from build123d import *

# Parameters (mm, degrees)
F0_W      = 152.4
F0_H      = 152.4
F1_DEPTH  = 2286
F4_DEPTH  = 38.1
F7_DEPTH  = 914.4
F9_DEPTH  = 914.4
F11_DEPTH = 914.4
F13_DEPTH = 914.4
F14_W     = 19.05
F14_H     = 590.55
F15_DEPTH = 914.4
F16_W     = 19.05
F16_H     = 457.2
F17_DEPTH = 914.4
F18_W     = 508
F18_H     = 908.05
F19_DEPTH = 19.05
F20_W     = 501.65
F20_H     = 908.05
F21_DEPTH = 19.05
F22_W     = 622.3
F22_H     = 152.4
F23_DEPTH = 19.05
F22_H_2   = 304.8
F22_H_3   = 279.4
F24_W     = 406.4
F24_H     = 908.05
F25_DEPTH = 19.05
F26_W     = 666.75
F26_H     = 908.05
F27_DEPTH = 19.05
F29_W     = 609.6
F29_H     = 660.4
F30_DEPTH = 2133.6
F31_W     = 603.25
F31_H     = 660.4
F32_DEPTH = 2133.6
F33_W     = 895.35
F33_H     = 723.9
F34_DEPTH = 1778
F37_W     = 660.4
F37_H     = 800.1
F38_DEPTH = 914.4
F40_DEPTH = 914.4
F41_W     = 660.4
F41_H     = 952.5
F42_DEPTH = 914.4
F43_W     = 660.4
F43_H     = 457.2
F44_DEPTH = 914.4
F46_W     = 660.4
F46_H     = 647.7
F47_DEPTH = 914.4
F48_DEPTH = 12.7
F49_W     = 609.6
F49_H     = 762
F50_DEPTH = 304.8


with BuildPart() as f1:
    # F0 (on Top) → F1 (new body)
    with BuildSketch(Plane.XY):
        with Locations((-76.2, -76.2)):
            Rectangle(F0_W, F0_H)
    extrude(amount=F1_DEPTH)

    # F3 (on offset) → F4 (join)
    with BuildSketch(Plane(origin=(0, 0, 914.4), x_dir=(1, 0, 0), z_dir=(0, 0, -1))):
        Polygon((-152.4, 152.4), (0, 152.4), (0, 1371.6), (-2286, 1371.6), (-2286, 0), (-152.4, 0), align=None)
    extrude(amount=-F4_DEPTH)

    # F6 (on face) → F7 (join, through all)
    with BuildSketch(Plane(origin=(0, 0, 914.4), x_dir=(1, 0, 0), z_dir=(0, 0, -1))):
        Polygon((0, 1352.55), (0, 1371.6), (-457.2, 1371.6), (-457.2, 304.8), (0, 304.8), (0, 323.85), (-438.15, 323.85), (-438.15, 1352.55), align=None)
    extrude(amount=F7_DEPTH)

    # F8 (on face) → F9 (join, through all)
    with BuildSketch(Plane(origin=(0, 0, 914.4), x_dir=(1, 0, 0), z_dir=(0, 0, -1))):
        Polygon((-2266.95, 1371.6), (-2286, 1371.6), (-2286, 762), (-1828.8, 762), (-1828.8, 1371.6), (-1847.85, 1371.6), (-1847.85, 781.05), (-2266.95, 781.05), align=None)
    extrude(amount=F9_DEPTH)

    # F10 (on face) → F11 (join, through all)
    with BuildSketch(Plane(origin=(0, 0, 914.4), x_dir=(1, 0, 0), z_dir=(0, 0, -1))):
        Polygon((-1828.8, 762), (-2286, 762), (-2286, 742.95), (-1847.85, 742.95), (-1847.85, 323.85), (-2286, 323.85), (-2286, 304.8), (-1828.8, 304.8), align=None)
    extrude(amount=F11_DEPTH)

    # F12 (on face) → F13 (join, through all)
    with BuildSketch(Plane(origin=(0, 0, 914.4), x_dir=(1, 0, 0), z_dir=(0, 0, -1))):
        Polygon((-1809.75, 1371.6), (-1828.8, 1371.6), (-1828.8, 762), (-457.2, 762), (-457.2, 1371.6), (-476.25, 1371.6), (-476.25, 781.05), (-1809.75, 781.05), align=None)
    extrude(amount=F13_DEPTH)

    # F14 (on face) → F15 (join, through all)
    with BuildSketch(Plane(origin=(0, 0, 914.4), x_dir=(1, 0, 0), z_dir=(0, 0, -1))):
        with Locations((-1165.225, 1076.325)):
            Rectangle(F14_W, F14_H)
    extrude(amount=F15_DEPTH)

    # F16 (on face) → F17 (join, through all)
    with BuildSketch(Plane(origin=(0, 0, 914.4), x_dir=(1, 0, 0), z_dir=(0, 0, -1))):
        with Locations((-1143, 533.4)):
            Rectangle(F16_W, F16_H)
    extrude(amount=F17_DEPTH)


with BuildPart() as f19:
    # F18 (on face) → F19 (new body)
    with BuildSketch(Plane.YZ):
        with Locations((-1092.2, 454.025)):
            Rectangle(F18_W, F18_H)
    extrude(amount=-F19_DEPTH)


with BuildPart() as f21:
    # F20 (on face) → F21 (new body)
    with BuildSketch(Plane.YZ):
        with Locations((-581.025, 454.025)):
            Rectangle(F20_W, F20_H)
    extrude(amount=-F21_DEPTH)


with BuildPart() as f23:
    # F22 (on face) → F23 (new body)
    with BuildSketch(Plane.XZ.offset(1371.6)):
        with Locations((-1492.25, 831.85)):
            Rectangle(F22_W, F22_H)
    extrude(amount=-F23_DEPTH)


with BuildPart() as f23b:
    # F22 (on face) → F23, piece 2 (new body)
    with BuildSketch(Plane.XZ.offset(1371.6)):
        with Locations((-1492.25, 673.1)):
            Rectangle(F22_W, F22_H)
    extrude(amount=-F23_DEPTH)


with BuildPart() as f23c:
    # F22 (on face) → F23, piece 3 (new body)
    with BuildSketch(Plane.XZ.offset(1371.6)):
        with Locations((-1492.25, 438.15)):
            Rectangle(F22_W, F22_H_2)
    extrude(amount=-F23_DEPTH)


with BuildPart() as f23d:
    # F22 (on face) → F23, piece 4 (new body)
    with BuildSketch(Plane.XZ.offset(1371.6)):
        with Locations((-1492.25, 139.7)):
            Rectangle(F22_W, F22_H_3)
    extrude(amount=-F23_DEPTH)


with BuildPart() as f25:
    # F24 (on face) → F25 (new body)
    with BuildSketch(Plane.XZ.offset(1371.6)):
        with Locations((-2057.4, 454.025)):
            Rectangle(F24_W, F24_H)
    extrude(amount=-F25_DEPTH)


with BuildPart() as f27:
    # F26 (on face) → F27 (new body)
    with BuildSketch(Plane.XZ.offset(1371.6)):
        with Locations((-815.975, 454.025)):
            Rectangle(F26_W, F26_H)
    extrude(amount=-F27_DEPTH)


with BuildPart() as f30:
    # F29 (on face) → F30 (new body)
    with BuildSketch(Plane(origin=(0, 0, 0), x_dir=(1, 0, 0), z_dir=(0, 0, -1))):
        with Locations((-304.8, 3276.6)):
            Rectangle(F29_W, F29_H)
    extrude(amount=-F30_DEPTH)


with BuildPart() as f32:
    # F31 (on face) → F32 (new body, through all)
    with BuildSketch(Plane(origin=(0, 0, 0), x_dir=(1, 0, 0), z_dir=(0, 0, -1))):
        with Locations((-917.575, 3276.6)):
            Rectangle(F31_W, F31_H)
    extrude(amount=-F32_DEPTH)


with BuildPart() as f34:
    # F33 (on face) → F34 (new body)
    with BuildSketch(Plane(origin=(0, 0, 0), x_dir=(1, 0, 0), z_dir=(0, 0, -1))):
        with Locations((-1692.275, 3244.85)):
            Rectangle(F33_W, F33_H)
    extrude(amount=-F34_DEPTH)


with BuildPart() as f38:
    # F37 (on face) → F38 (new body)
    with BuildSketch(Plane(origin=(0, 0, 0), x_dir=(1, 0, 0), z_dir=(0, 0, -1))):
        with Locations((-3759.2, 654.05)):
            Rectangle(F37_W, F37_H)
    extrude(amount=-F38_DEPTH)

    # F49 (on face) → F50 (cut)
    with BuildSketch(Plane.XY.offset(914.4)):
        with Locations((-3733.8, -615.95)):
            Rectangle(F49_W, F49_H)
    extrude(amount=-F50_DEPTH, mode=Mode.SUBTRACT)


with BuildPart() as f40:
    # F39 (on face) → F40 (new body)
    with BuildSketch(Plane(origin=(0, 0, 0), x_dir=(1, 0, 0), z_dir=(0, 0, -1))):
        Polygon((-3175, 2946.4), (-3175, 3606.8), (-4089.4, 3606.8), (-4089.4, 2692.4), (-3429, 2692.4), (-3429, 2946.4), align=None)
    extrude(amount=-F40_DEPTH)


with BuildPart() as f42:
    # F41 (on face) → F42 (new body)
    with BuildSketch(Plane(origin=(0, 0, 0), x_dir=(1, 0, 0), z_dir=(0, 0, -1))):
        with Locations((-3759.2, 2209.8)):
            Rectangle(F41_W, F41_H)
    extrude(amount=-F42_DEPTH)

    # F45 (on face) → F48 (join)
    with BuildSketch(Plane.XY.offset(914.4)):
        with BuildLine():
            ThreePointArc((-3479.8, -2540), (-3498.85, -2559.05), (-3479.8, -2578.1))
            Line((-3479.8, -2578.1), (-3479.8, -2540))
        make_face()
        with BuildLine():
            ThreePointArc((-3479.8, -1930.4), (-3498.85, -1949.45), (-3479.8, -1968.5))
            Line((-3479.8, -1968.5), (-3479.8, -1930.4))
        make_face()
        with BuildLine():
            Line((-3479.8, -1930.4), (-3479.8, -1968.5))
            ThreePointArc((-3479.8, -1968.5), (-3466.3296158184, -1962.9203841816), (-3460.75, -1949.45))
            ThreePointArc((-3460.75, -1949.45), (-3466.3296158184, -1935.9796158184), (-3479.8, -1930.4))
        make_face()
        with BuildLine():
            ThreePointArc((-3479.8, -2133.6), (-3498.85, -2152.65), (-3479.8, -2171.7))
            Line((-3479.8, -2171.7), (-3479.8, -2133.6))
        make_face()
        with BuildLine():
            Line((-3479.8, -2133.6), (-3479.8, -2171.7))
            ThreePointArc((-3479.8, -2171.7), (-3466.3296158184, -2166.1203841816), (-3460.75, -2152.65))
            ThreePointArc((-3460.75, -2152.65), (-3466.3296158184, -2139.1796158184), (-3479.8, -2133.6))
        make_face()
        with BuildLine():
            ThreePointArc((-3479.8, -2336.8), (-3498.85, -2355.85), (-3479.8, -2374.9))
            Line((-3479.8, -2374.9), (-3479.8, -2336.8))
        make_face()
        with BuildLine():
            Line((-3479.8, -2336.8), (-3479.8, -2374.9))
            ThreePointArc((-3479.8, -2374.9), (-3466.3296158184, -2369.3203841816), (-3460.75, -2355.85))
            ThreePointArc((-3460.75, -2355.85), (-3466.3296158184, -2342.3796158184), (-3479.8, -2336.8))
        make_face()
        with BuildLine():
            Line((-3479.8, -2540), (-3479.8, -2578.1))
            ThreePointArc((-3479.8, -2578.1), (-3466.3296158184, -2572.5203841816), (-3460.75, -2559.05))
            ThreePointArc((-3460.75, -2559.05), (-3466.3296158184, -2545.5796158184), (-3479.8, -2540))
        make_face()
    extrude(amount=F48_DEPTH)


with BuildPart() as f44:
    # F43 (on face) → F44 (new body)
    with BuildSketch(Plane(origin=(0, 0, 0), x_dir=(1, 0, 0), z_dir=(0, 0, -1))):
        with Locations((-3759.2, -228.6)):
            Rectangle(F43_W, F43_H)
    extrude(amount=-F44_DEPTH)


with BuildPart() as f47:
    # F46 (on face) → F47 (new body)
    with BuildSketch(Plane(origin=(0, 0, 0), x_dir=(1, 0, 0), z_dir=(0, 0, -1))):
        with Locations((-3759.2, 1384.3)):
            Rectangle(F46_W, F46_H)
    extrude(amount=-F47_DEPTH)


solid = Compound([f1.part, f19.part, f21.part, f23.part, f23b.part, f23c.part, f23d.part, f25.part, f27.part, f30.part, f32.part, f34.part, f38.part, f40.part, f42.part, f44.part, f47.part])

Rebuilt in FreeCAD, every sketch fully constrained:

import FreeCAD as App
import Part
import Sketcher
Q = App.Units.Quantity


def add_polygon(sketch, points):
    """Adds a closed chain of lines whose ends are joined by coincident constraints."""
    first, n = sketch.GeometryCount, len(points)
    for a, b in zip(points, points[1:] + points[:1]):
        sketch.addGeometry(Part.LineSegment(App.Vector(*a, 0), App.Vector(*b, 0)), False)
    for i in range(n):
        sketch.addConstraint(Sketcher.Constraint("Coincident", first + i, 2, first + (i + 1) % n, 1))

doc = App.newDocument("Part")
body = doc.addObject("PartDesign::Body", "Body")

# Sketch on XY plane
sketch1 = body.newObject("Sketcher::SketchObject", "Sketch")
sketch1.AttachmentSupport = (doc.getObject("XY_Plane"), [""])
sketch1.MapMode = "FlatFace"
add_polygon(sketch1, [(-152, 0), (-152, -152), (0, -152), (0, 0)])  # lines 0-3
sketch1.addConstraint(Sketcher.Constraint("Vertical", 0))
sketch1.addConstraint(Sketcher.Constraint("Horizontal", 1))
sketch1.addConstraint(Sketcher.Constraint("Vertical", 2))
sketch1.addConstraint(Sketcher.Constraint("Horizontal", 3))
sketch1.addConstraint(Sketcher.Constraint("Coincident", 2, 2, -1, 1))
sketch1.addConstraint(Sketcher.Constraint("Equal", 3, 0))
sketch1.addConstraint(Sketcher.Constraint("DistanceX", 1, 1, 1, 2, Q("6 in")))
pad1 = body.newObject("PartDesign::Pad", "Pad")
pad1.Profile = sketch1
pad1.Length = Q("90 in")

# Sketch on XY plane
sketch2 = body.newObject("Sketcher::SketchObject", "Sketch001")
sketch2.AttachmentSupport = (doc.getObject("XY_Plane"), [""])
sketch2.MapMode = "FlatFace"
sketch2.AttachmentOffset = App.Placement(App.Vector(0, 0, 36 * 25.4), App.Rotation())
add_polygon(sketch2, [(-152, -152), (0, -152), (0, -1372), (-2286, -1372), (-2286, 0), (-152, 0)])  # lines 0-5
sketch2.addConstraint(Sketcher.Constraint("Horizontal", 0))
sketch2.addConstraint(Sketcher.Constraint("Vertical", 1))
sketch2.addConstraint(Sketcher.Constraint("Horizontal", 2))
sketch2.addConstraint(Sketcher.Constraint("Vertical", 3))
sketch2.addConstraint(Sketcher.Constraint("Horizontal", 4))
sketch2.addConstraint(Sketcher.Constraint("Vertical", 5))
sketch2.addConstraint(Sketcher.Constraint("PointOnObject", 0, 2, -2))
sketch2.addConstraint(Sketcher.Constraint("PointOnObject", 3, 2, -1))
sketch2.addConstraint(Sketcher.Constraint("Equal", 0, 5))
sketch2.addConstraint(Sketcher.Constraint("DistanceX", 0, 1, 0, 2, Q("6 in")))
sketch2.addConstraint(Sketcher.Constraint("DistanceX", 2, 2, 2, 1, Q("90 in")))
sketch2.addConstraint(Sketcher.Constraint("DistanceY", 1, 2, 1, 1, Q("48 in")))
pad2 = body.newObject("PartDesign::Pad", "Pad001")
pad2.Profile = sketch2
pad2.Length = Q("1.5 in")

# Sketch on XY plane
sketch3 = body.newObject("Sketcher::SketchObject", "Sketch002")
sketch3.AttachmentSupport = (doc.getObject("XY_Plane"), [""])
sketch3.MapMode = "FlatFace"
sketch3.AttachmentOffset = App.Placement(App.Vector(0, 0, 36 * 25.4), App.Rotation())
add_polygon(sketch3, [(0, -1353), (0, -1372), (-457, -1372), (-457, -305), (0, -305), (0, -324), (-438, -324), (-438, -1353)])  # lines 0-7
sketch3.addConstraint(Sketcher.Constraint("Vertical", 0))
sketch3.addConstraint(Sketcher.Constraint("Horizontal", 1))
sketch3.addConstraint(Sketcher.Constraint("Vertical", 2))
sketch3.addConstraint(Sketcher.Constraint("Horizontal", 3))
sketch3.addConstraint(Sketcher.Constraint("Vertical", 4))
sketch3.addConstraint(Sketcher.Constraint("Horizontal", 5))
sketch3.addConstraint(Sketcher.Constraint("Vertical", 6))
sketch3.addConstraint(Sketcher.Constraint("Horizontal", 7))
sketch3.addConstraint(Sketcher.Constraint("PointOnObject", 0, 2, -2))
sketch3.addConstraint(Sketcher.Constraint("PointOnObject", 3, 2, -2))
sketch3.addConstraint(Sketcher.Constraint("Equal", 0, 4))
sketch3.addConstraint(Sketcher.Constraint("DistanceX", 1, 2, 1, 1, Q("18 in")))
sketch3.addConstraint(Sketcher.Constraint("DistanceY", 2, 1, 2, 2, Q("42 in")))
sketch3.addConstraint(Sketcher.Constraint("DistanceY", 6, 2, 6, 1, Q("40.5 in")))
sketch3.addConstraint(Sketcher.Constraint("DistanceY", 0, 2, -1, 1, Q("54 in")))
sketch3.addConstraint(Sketcher.Constraint("DistanceX", 5, 2, 5, 1, Q("17.25 in")))
pad3 = body.newObject("PartDesign::Pad", "Pad002")
pad3.Profile = sketch3
pad3.Length = Q("36 in")
pad3.Reversed = True

# Sketch on XY plane
sketch4 = body.newObject("Sketcher::SketchObject", "Sketch003")
sketch4.AttachmentSupport = (doc.getObject("XY_Plane"), [""])
sketch4.MapMode = "FlatFace"
sketch4.AttachmentOffset = App.Placement(App.Vector(0, 0, 36 * 25.4), App.Rotation())
add_polygon(sketch4, [(-2267, -1372), (-2286, -1372), (-2286, -762), (-1829, -762), (-1829, -1372), (-1848, -1372), (-1848, -781), (-2267, -781)])  # lines 0-7
sketch4.addConstraint(Sketcher.Constraint("Horizontal", 0))
sketch4.addConstraint(Sketcher.Constraint("Vertical", 1))
sketch4.addConstraint(Sketcher.Constraint("Horizontal", 2))
sketch4.addConstraint(Sketcher.Constraint("Vertical", 3))
sketch4.addConstraint(Sketcher.Constraint("Horizontal", 4))
sketch4.addConstraint(Sketcher.Constraint("Vertical", 5))
sketch4.addConstraint(Sketcher.Constraint("Horizontal", 6))
sketch4.addConstraint(Sketcher.Constraint("Vertical", 7))
sketch4.addConstraint(Sketcher.Constraint("Horizontal", 0, 2, 3, 2))
sketch4.addConstraint(Sketcher.Constraint("Equal", 0, 4))
sketch4.addConstraint(Sketcher.Constraint("DistanceX", 2, 1, 2, 2, Q("18 in")))
sketch4.addConstraint(Sketcher.Constraint("DistanceY", 1, 1, 1, 2, Q("24 in")))
sketch4.addConstraint(Sketcher.Constraint("DistanceX", 6, 2, 6, 1, Q("16.5 in")))
sketch4.addConstraint(Sketcher.Constraint("DistanceX", 0, 2, -1, 1, Q("90 in")))
sketch4.addConstraint(Sketcher.Constraint("DistanceY", 0, 2, -1, 1, Q("54 in")))
sketch4.addConstraint(Sketcher.Constraint("DistanceY", 5, 1, 5, 2, Q("23.25 in")))
pad4 = body.newObject("PartDesign::Pad", "Pad003")
pad4.Profile = sketch4
pad4.Length = Q("36 in")
pad4.Reversed = True

# Sketch on XY plane
sketch5 = body.newObject("Sketcher::SketchObject", "Sketch004")
sketch5.AttachmentSupport = (doc.getObject("XY_Plane"), [""])
sketch5.MapMode = "FlatFace"
sketch5.AttachmentOffset = App.Placement(App.Vector(0, 0, 36 * 25.4), App.Rotation())
add_polygon(sketch5, [(-1829, -762), (-2286, -762), (-2286, -743), (-1848, -743), (-1848, -324), (-2286, -324), (-2286, -305), (-1829, -305)])  # lines 0-7
sketch5.addConstraint(Sketcher.Constraint("Horizontal", 0))
sketch5.addConstraint(Sketcher.Constraint("Vertical", 1))
sketch5.addConstraint(Sketcher.Constraint("Horizontal", 2))
sketch5.addConstraint(Sketcher.Constraint("Vertical", 3))
sketch5.addConstraint(Sketcher.Constraint("Horizontal", 4))
sketch5.addConstraint(Sketcher.Constraint("Vertical", 5))
sketch5.addConstraint(Sketcher.Constraint("Horizontal", 6))
sketch5.addConstraint(Sketcher.Constraint("Vertical", 7))
sketch5.addConstraint(Sketcher.Constraint("Vertical", 1, 2, 4, 2))
sketch5.addConstraint(Sketcher.Constraint("Equal", 1, 5))
sketch5.addConstraint(Sketcher.Constraint("Equal", 6, 7))
sketch5.addConstraint(Sketcher.Constraint("DistanceX", 0, 2, 0, 1, Q("18 in")))
sketch5.addConstraint(Sketcher.Constraint("DistanceY", 3, 1, 3, 2, Q("16.5 in")))
sketch5.addConstraint(Sketcher.Constraint("DistanceX", 0, 2, -1, 1, Q("90 in")))
sketch5.addConstraint(Sketcher.Constraint("DistanceY", 0, 2, -1, 1, Q("30 in")))
sketch5.addConstraint(Sketcher.Constraint("DistanceX", 2, 1, 2, 2, Q("17.25 in")))
pad5 = body.newObject("PartDesign::Pad", "Pad004")
pad5.Profile = sketch5
pad5.Length = Q("36 in")
pad5.Reversed = True

# Sketch on XY plane
sketch6 = body.newObject("Sketcher::SketchObject", "Sketch005")
sketch6.AttachmentSupport = (doc.getObject("XY_Plane"), [""])
sketch6.MapMode = "FlatFace"
sketch6.AttachmentOffset = App.Placement(App.Vector(0, 0, 36 * 25.4), App.Rotation())
add_polygon(sketch6, [(-1810, -1372), (-1829, -1372), (-1829, -762), (-457, -762), (-457, -1372), (-476, -1372), (-476, -781), (-1810, -781)])  # lines 0-7
sketch6.addConstraint(Sketcher.Constraint("Horizontal", 0))
sketch6.addConstraint(Sketcher.Constraint("Vertical", 1))
sketch6.addConstraint(Sketcher.Constraint("Horizontal", 2))
sketch6.addConstraint(Sketcher.Constraint("Vertical", 3))
sketch6.addConstraint(Sketcher.Constraint("Horizontal", 4))
sketch6.addConstraint(Sketcher.Constraint("Vertical", 5))
sketch6.addConstraint(Sketcher.Constraint("Horizontal", 6))
sketch6.addConstraint(Sketcher.Constraint("Vertical", 7))
sketch6.addConstraint(Sketcher.Constraint("Horizontal", 0, 2, 3, 2))
sketch6.addConstraint(Sketcher.Constraint("Equal", 0, 4))
sketch6.addConstraint(Sketcher.Constraint("DistanceX", 2, 1, 2, 2, Q("54 in")))
sketch6.addConstraint(Sketcher.Constraint("DistanceY", 1, 1, 1, 2, Q("24 in")))
sketch6.addConstraint(Sketcher.Constraint("DistanceX", 6, 2, 6, 1, Q("52.5 in")))
sketch6.addConstraint(Sketcher.Constraint("DistanceX", 0, 2, -1, 1, Q("72 in")))
sketch6.addConstraint(Sketcher.Constraint("DistanceY", 0, 2, -1, 1, Q("54 in")))
sketch6.addConstraint(Sketcher.Constraint("DistanceY", 5, 1, 5, 2, Q("23.25 in")))
pad6 = body.newObject("PartDesign::Pad", "Pad005")
pad6.Profile = sketch6
pad6.Length = Q("36 in")
pad6.Reversed = True

# Sketch on XY plane
sketch7 = body.newObject("Sketcher::SketchObject", "Sketch006")
sketch7.AttachmentSupport = (doc.getObject("XY_Plane"), [""])
sketch7.MapMode = "FlatFace"
sketch7.AttachmentOffset = App.Placement(App.Vector(0, 0, 36 * 25.4), App.Rotation())
add_polygon(sketch7, [(-1175, -1372), (-1175, -781), (-1156, -781), (-1156, -1372)])  # lines 0-3
sketch7.addConstraint(Sketcher.Constraint("Vertical", 0))
sketch7.addConstraint(Sketcher.Constraint("Horizontal", 1))
sketch7.addConstraint(Sketcher.Constraint("Vertical", 2))
sketch7.addConstraint(Sketcher.Constraint("Horizontal", 3))
sketch7.addConstraint(Sketcher.Constraint("DistanceY", 2, 2, -1, 1, Q("54 in")))
sketch7.addConstraint(Sketcher.Constraint("DistanceX", 1, 1, 1, 2, Q("0.75 in")))
sketch7.addConstraint(Sketcher.Constraint("DistanceY", 0, 1, 0, 2, Q("23.25 in")))
sketch7.addConstraint(Sketcher.Constraint("DistanceX", 1, 2, -1, 1, Q("45.5 in")))
pad7 = body.newObject("PartDesign::Pad", "Pad006")
pad7.Profile = sketch7
pad7.Length = Q("36 in")
pad7.Reversed = True

# Sketch on XY plane
sketch8 = body.newObject("Sketcher::SketchObject", "Sketch007")
sketch8.AttachmentSupport = (doc.getObject("XY_Plane"), [""])
sketch8.MapMode = "FlatFace"
sketch8.AttachmentOffset = App.Placement(App.Vector(0, 0, 36 * 25.4), App.Rotation())
add_polygon(sketch8, [(-1153, -762), (-1153, -305), (-1133, -305), (-1133, -762)])  # lines 0-3
sketch8.addConstraint(Sketcher.Constraint("Vertical", 0))
sketch8.addConstraint(Sketcher.Constraint("Horizontal", 1))
sketch8.addConstraint(Sketcher.Constraint("Vertical", 2))
sketch8.addConstraint(Sketcher.Constraint("Horizontal", 3))
sketch8.addConstraint(Sketcher.Constraint("DistanceY", 0, 1, 0, 2, Q("18 in")))
sketch8.addConstraint(Sketcher.Constraint("DistanceY", 0, 2, -1, 1, Q("12 in")))
sketch8.addConstraint(Sketcher.Constraint("DistanceX", 1, 1, 1, 2, Q("0.75 in")))
sketch8.addConstraint(Sketcher.Constraint("DistanceX", 0, 2, -1, 1, Q("45.375 in")))
pad8 = body.newObject("PartDesign::Pad", "Pad007")
pad8.Profile = sketch8
pad8.Length = Q("36 in")
pad8.Reversed = True
body2 = doc.addObject("PartDesign::Body", "Body001")

# Sketch on YZ plane
sketch9 = body2.newObject("Sketcher::SketchObject", "Sketch008")
sketch9.AttachmentSupport = (doc.getObject("YZ_Plane001"), [""])
sketch9.MapMode = "FlatFace"
add_polygon(sketch9, [(-1346, 908), (-1346, 0), (-838, 0), (-838, 908)])  # lines 0-3
sketch9.addConstraint(Sketcher.Constraint("Vertical", 0))
sketch9.addConstraint(Sketcher.Constraint("Horizontal", 1))
sketch9.addConstraint(Sketcher.Constraint("Vertical", 2))
sketch9.addConstraint(Sketcher.Constraint("Horizontal", 3))
sketch9.addConstraint(Sketcher.Constraint("PointOnObject", 0, 2, -1))
sketch9.addConstraint(Sketcher.Constraint("DistanceX", 1, 1, 1, 2, Q("20 in")))
sketch9.addConstraint(Sketcher.Constraint("DistanceX", 0, 2, -1, 1, Q("53 in")))
sketch9.addConstraint(Sketcher.Constraint("DistanceY", 0, 2, 0, 1, Q("35.75 in")))
pad9 = body2.newObject("PartDesign::Pad", "Pad008")
pad9.Profile = sketch9
pad9.Length = Q("0.75 in")
pad9.Reversed = True
body3 = doc.addObject("PartDesign::Body", "Body002")

# Sketch on YZ plane
sketch10 = body3.newObject("Sketcher::SketchObject", "Sketch009")
sketch10.AttachmentSupport = (doc.getObject("YZ_Plane002"), [""])
sketch10.MapMode = "FlatFace"
add_polygon(sketch10, [(-832, 908), (-832, 0), (-330, 0), (-330, 908)])  # lines 0-3
sketch10.addConstraint(Sketcher.Constraint("Vertical", 0))
sketch10.addConstraint(Sketcher.Constraint("Horizontal", 1))
sketch10.addConstraint(Sketcher.Constraint("Vertical", 2))
sketch10.addConstraint(Sketcher.Constraint("Horizontal", 3))
sketch10.addConstraint(Sketcher.Constraint("PointOnObject", 0, 2, -1))
sketch10.addConstraint(Sketcher.Constraint("DistanceX", 1, 2, -1, 1, Q("13 in")))
sketch10.addConstraint(Sketcher.Constraint("DistanceX", 1, 1, 1, 2, Q("19.75 in")))
sketch10.addConstraint(Sketcher.Constraint("DistanceY", 0, 2, 0, 1, Q("35.75 in")))
pad10 = body3.newObject("PartDesign::Pad", "Pad009")
pad10.Profile = sketch10
pad10.Length = Q("0.75 in")
pad10.Reversed = True
body4 = doc.addObject("PartDesign::Body", "Body003")

# Sketch on XZ plane
sketch11 = body4.newObject("Sketcher::SketchObject", "Sketch010")
sketch11.AttachmentSupport = (doc.getObject("XZ_Plane003"), [""])
sketch11.MapMode = "FlatFace"
sketch11.AttachmentOffset = App.Placement(App.Vector(0, 0, 54 * 25.4), App.Rotation())
add_polygon(sketch11, [(-1803, 908), (-1803, 756), (-1181, 756), (-1181, 908)])  # lines 0-3
sketch11.addConstraint(Sketcher.Constraint("Vertical", 0))
sketch11.addConstraint(Sketcher.Constraint("Horizontal", 1))
sketch11.addConstraint(Sketcher.Constraint("Vertical", 2))
sketch11.addConstraint(Sketcher.Constraint("Horizontal", 3))
sketch11.addConstraint(Sketcher.Constraint("DistanceY", 0, 2, 0, 1, Q("6 in")))
sketch11.addConstraint(Sketcher.Constraint("DistanceX", 1, 1, 1, 2, Q("24.5 in")))
sketch11.addConstraint(Sketcher.Constraint("DistanceX", 0, 2, -1, 1, Q("71 in")))
sketch11.addConstraint(Sketcher.Constraint("DistanceY", -1, 1, 0, 2, Q("29.75 in")))
pad11 = body4.newObject("PartDesign::Pad", "Pad010")
pad11.Profile = sketch11
pad11.Length = Q("0.75 in")
pad11.Reversed = True
body5 = doc.addObject("PartDesign::Body", "Body004")

# Sketch on XZ plane
sketch12 = body5.newObject("Sketcher::SketchObject", "Sketch011")
sketch12.AttachmentSupport = (doc.getObject("XZ_Plane004"), [""])
sketch12.MapMode = "FlatFace"
sketch12.AttachmentOffset = App.Placement(App.Vector(0, 0, 54 * 25.4), App.Rotation())
add_polygon(sketch12, [(-1803, 749), (-1803, 597), (-1181, 597), (-1181, 749)])  # lines 0-3
sketch12.addConstraint(Sketcher.Constraint("Vertical", 0))
sketch12.addConstraint(Sketcher.Constraint("Horizontal", 1))
sketch12.addConstraint(Sketcher.Constraint("Vertical", 2))
sketch12.addConstraint(Sketcher.Constraint("Horizontal", 3))
sketch12.addConstraint(Sketcher.Constraint("DistanceY", 0, 2, 0, 1, Q("6 in")))
sketch12.addConstraint(Sketcher.Constraint("DistanceX", 1, 1, 1, 2, Q("24.5 in")))
sketch12.addConstraint(Sketcher.Constraint("DistanceX", 0, 2, -1, 1, Q("71 in")))
sketch12.addConstraint(Sketcher.Constraint("DistanceY", -1, 1, 0, 2, Q("23.5 in")))
pad12 = body5.newObject("PartDesign::Pad", "Pad011")
pad12.Profile = sketch12
pad12.Length = Q("0.75 in")
pad12.Reversed = True
body6 = doc.addObject("PartDesign::Body", "Body005")

# Sketch on XZ plane
sketch13 = body6.newObject("Sketcher::SketchObject", "Sketch012")
sketch13.AttachmentSupport = (doc.getObject("XZ_Plane005"), [""])
sketch13.MapMode = "FlatFace"
sketch13.AttachmentOffset = App.Placement(App.Vector(0, 0, 54 * 25.4), App.Rotation())
add_polygon(sketch13, [(-1803, 591), (-1803, 286), (-1181, 286), (-1181, 591)])  # lines 0-3
sketch13.addConstraint(Sketcher.Constraint("Vertical", 0))
sketch13.addConstraint(Sketcher.Constraint("Horizontal", 1))
sketch13.addConstraint(Sketcher.Constraint("Vertical", 2))
sketch13.addConstraint(Sketcher.Constraint("Horizontal", 3))
sketch13.addConstraint(Sketcher.Constraint("DistanceY", 0, 2, 0, 1, Q("12 in")))
sketch13.addConstraint(Sketcher.Constraint("DistanceX", 1, 1, 1, 2, Q("24.5 in")))
sketch13.addConstraint(Sketcher.Constraint("DistanceX", 0, 2, -1, 1, Q("71 in")))
sketch13.addConstraint(Sketcher.Constraint("DistanceY", -1, 1, 0, 2, Q("11.25 in")))
pad13 = body6.newObject("PartDesign::Pad", "Pad012")
pad13.Profile = sketch13
pad13.Length = Q("0.75 in")
pad13.Reversed = True
body7 = doc.addObject("PartDesign::Body", "Body006")

# Sketch on XZ plane
sketch14 = body7.newObject("Sketcher::SketchObject", "Sketch013")
sketch14.AttachmentSupport = (doc.getObject("XZ_Plane006"), [""])
sketch14.MapMode = "FlatFace"
sketch14.AttachmentOffset = App.Placement(App.Vector(0, 0, 54 * 25.4), App.Rotation())
add_polygon(sketch14, [(-1803, 279), (-1803, 0), (-1181, 0), (-1181, 279)])  # lines 0-3
sketch14.addConstraint(Sketcher.Constraint("Vertical", 0))
sketch14.addConstraint(Sketcher.Constraint("Horizontal", 1))
sketch14.addConstraint(Sketcher.Constraint("Vertical", 2))
sketch14.addConstraint(Sketcher.Constraint("Horizontal", 3))
sketch14.addConstraint(Sketcher.Constraint("PointOnObject", 0, 2, -1))
sketch14.addConstraint(Sketcher.Constraint("DistanceY", 0, 2, 0, 1, Q("11 in")))
sketch14.addConstraint(Sketcher.Constraint("DistanceX", 1, 1, 1, 2, Q("24.5 in")))
sketch14.addConstraint(Sketcher.Constraint("DistanceX", 0, 2, -1, 1, Q("71 in")))
pad14 = body7.newObject("PartDesign::Pad", "Pad013")
pad14.Profile = sketch14
pad14.Length = Q("0.75 in")
pad14.Reversed = True
body8 = doc.addObject("PartDesign::Body", "Body007")

# Sketch on XZ plane
sketch15 = body8.newObject("Sketcher::SketchObject", "Sketch014")
sketch15.AttachmentSupport = (doc.getObject("XZ_Plane007"), [""])
sketch15.MapMode = "FlatFace"
sketch15.AttachmentOffset = App.Placement(App.Vector(0, 0, 54 * 25.4), App.Rotation())
add_polygon(sketch15, [(-2261, 908), (-2261, 0), (-1854, 0), (-1854, 908)])  # lines 0-3
sketch15.addConstraint(Sketcher.Constraint("Vertical", 0))
sketch15.addConstraint(Sketcher.Constraint("Horizontal", 1))
sketch15.addConstraint(Sketcher.Constraint("Vertical", 2))
sketch15.addConstraint(Sketcher.Constraint("Horizontal", 3))
sketch15.addConstraint(Sketcher.Constraint("PointOnObject", 0, 2, -1))
sketch15.addConstraint(Sketcher.Constraint("DistanceX", 1, 1, 1, 2, Q("16 in")))
sketch15.addConstraint(Sketcher.Constraint("DistanceX", 0, 2, -1, 1, Q("89 in")))
sketch15.addConstraint(Sketcher.Constraint("DistanceY", 0, 2, 0, 1, Q("35.75 in")))
pad15 = body8.newObject("PartDesign::Pad", "Pad014")
pad15.Profile = sketch15
pad15.Length = Q("0.75 in")
pad15.Reversed = True
body9 = doc.addObject("PartDesign::Body", "Body008")

# Sketch on XZ plane
sketch16 = body9.newObject("Sketcher::SketchObject", "Sketch015")
sketch16.AttachmentSupport = (doc.getObject("XZ_Plane008"), [""])
sketch16.MapMode = "FlatFace"
sketch16.AttachmentOffset = App.Placement(App.Vector(0, 0, 54 * 25.4), App.Rotation())
add_polygon(sketch16, [(-1149, 908), (-1149, 0), (-483, 0), (-483, 908)])  # lines 0-3
sketch16.addConstraint(Sketcher.Constraint("Vertical", 0))
sketch16.addConstraint(Sketcher.Constraint("Horizontal", 1))
sketch16.addConstraint(Sketcher.Constraint("Vertical", 2))
sketch16.addConstraint(Sketcher.Constraint("Horizontal", 3))
sketch16.addConstraint(Sketcher.Constraint("PointOnObject", 0, 2, -1))
sketch16.addConstraint(Sketcher.Constraint("DistanceX", 1, 2, -1, 1, Q("19 in")))
sketch16.addConstraint(Sketcher.Constraint("DistanceX", 1, 1, 1, 2, Q("26.25 in")))
sketch16.addConstraint(Sketcher.Constraint("DistanceY", 0, 2, 0, 1, Q("35.75 in")))
pad16 = body9.newObject("PartDesign::Pad", "Pad015")
pad16.Profile = sketch16
pad16.Length = Q("0.75 in")
pad16.Reversed = True
body10 = doc.addObject("PartDesign::Body", "Body009")

# Sketch on XY plane
sketch17 = body10.newObject("Sketcher::SketchObject", "Sketch016")
sketch17.AttachmentSupport = (doc.getObject("XY_Plane009"), [""])
sketch17.MapMode = "FlatFace"
add_polygon(sketch17, [(-610, -3607), (-610, -2946), (0, -2946), (0, -3607)])  # lines 0-3
sketch17.addConstraint(Sketcher.Constraint("Vertical", 0))
sketch17.addConstraint(Sketcher.Constraint("Horizontal", 1))
sketch17.addConstraint(Sketcher.Constraint("Vertical", 2))
sketch17.addConstraint(Sketcher.Constraint("Horizontal", 3))
sketch17.addConstraint(Sketcher.Constraint("PointOnObject", 1, 2, -2))
sketch17.addConstraint(Sketcher.Constraint("DistanceX", 1, 1, 1, 2, Q("24 in")))
sketch17.addConstraint(Sketcher.Constraint("DistanceY", 0, 1, 0, 2, Q("26 in")))
sketch17.addConstraint(Sketcher.Constraint("DistanceY", 0, 2, -1, 1, Q("116 in")))
pad17 = body10.newObject("PartDesign::Pad", "Pad016")
pad17.Profile = sketch17
pad17.Length = Q("84 in")
body11 = doc.addObject("PartDesign::Body", "Body010")

# Sketch on XY plane
sketch18 = body11.newObject("Sketcher::SketchObject", "Sketch017")
sketch18.AttachmentSupport = (doc.getObject("XY_Plane010"), [""])
sketch18.MapMode = "FlatFace"
add_polygon(sketch18, [(-1219, -3607), (-1219, -2946), (-616, -2946), (-616, -3607)])  # lines 0-3
sketch18.addConstraint(Sketcher.Constraint("Vertical", 0))
sketch18.addConstraint(Sketcher.Constraint("Horizontal", 1))
sketch18.addConstraint(Sketcher.Constraint("Vertical", 2))
sketch18.addConstraint(Sketcher.Constraint("Horizontal", 3))
sketch18.addConstraint(Sketcher.Constraint("DistanceY", 0, 1, 0, 2, Q("26 in")))
sketch18.addConstraint(Sketcher.Constraint("DistanceX", 0, 2, -1, 1, Q("48 in")))
sketch18.addConstraint(Sketcher.Constraint("DistanceY", 0, 2, -1, 1, Q("116 in")))
sketch18.addConstraint(Sketcher.Constraint("DistanceX", 1, 1, 1, 2, Q("23.75 in")))
pad18 = body11.newObject("PartDesign::Pad", "Pad017")
pad18.Profile = sketch18
pad18.Length = Q("84 in")
body12 = doc.addObject("PartDesign::Body", "Body011")

# Sketch on XY plane
sketch19 = body12.newObject("Sketcher::SketchObject", "Sketch018")
sketch19.AttachmentSupport = (doc.getObject("XY_Plane011"), [""])
sketch19.MapMode = "FlatFace"
add_polygon(sketch19, [(-2140, -3607), (-2140, -2883), (-1245, -2883), (-1245, -3607)])  # lines 0-3
sketch19.addConstraint(Sketcher.Constraint("Vertical", 0))
sketch19.addConstraint(Sketcher.Constraint("Horizontal", 1))
sketch19.addConstraint(Sketcher.Constraint("Vertical", 2))
sketch19.addConstraint(Sketcher.Constraint("Horizontal", 3))
sketch19.addConstraint(Sketcher.Constraint("DistanceY", 0, 1, 0, 2, Q("28.5 in")))
sketch19.addConstraint(Sketcher.Constraint("DistanceX", 1, 2, -1, 1, Q("49 in")))
sketch19.addConstraint(Sketcher.Constraint("DistanceY", 2, 2, -1, 1, Q("142 in")))
sketch19.addConstraint(Sketcher.Constraint("DistanceX", 1, 1, 1, 2, Q("35.25 in")))
pad19 = body12.newObject("PartDesign::Pad", "Pad018")
pad19.Profile = sketch19
pad19.Length = Q("70 in")
body13 = doc.addObject("PartDesign::Body", "Body012")

# Sketch on XY plane
sketch20 = body13.newObject("Sketcher::SketchObject", "Sketch019")
sketch20.AttachmentSupport = (doc.getObject("XY_Plane012"), [""])
sketch20.MapMode = "FlatFace"
add_polygon(sketch20, [(-4089, -1054), (-4089, -254), (-3429, -254), (-3429, -1054)])  # lines 0-3
sketch20.addConstraint(Sketcher.Constraint("Vertical", 0))
sketch20.addConstraint(Sketcher.Constraint("Horizontal", 1))
sketch20.addConstraint(Sketcher.Constraint("Vertical", 2))
sketch20.addConstraint(Sketcher.Constraint("Horizontal", 3))
sketch20.addConstraint(Sketcher.Constraint("DistanceX", 1, 1, 1, 2, Q("26 in")))
sketch20.addConstraint(Sketcher.Constraint("DistanceY", 0, 1, 0, 2, Q("31.5 in")))
sketch20.addConstraint(Sketcher.Constraint("DistanceX", 0, 2, -1, 1, Q("161 in")))
sketch20.addConstraint(Sketcher.Constraint("DistanceY", 0, 2, -1, 1, Q("10 in")))
pad20 = body13.newObject("PartDesign::Pad", "Pad019")
pad20.Profile = sketch20
pad20.Length = Q("36 in")

# Sketch on XY plane
sketch21 = body13.newObject("Sketcher::SketchObject", "Sketch020")
sketch21.AttachmentSupport = (doc.getObject("XY_Plane012"), [""])
sketch21.MapMode = "FlatFace"
sketch21.AttachmentOffset = App.Placement(App.Vector(0, 0, 36 * 25.4), App.Rotation())
add_polygon(sketch21, [(-4039, -235), (-4039, -997), (-3429, -997), (-3429, -235)])  # lines 0-3
sketch21.addConstraint(Sketcher.Constraint("Vertical", 0))
sketch21.addConstraint(Sketcher.Constraint("Horizontal", 1))
sketch21.addConstraint(Sketcher.Constraint("Vertical", 2))
sketch21.addConstraint(Sketcher.Constraint("Horizontal", 3))
sketch21.addConstraint(Sketcher.Constraint("DistanceX", 1, 1, 1, 2, Q("24 in")))
sketch21.addConstraint(Sketcher.Constraint("DistanceY", 0, 2, 0, 1, Q("30 in")))
sketch21.addConstraint(Sketcher.Constraint("DistanceX", 0, 2, -1, 1, Q("159 in")))
sketch21.addConstraint(Sketcher.Constraint("DistanceY", 0, 2, -1, 1, Q("39.25 in")))
pocket1 = body13.newObject("PartDesign::Pocket", "Pocket")
pocket1.Profile = sketch21
pocket1.Length = Q("12 in")
body14 = doc.addObject("PartDesign::Body", "Body013")

# Sketch on XY plane
sketch22 = body14.newObject("Sketcher::SketchObject", "Sketch021")
sketch22.AttachmentSupport = (doc.getObject("XY_Plane013"), [""])
sketch22.MapMode = "FlatFace"
add_polygon(sketch22, [(-3175, -2946), (-3175, -3607), (-4089, -3607), (-4089, -2692), (-3429, -2692), (-3429, -2946)])  # lines 0-5
sketch22.addConstraint(Sketcher.Constraint("Vertical", 0))
sketch22.addConstraint(Sketcher.Constraint("Horizontal", 1))
sketch22.addConstraint(Sketcher.Constraint("Vertical", 2))
sketch22.addConstraint(Sketcher.Constraint("Horizontal", 3))
sketch22.addConstraint(Sketcher.Constraint("Vertical", 4))
sketch22.addConstraint(Sketcher.Constraint("Horizontal", 5))
sketch22.addConstraint(Sketcher.Constraint("Equal", 3, 0))
sketch22.addConstraint(Sketcher.Constraint("Equal", 1, 2))
sketch22.addConstraint(Sketcher.Constraint("DistanceX", 1, 2, 1, 1, Q("36 in")))
sketch22.addConstraint(Sketcher.Constraint("DistanceX", 3, 1, 3, 2, Q("26 in")))
sketch22.addConstraint(Sketcher.Constraint("DistanceX", 0, 2, -1, 1, Q("125 in")))
sketch22.addConstraint(Sketcher.Constraint("DistanceY", 0, 2, -1, 1, Q("142 in")))
pad21 = body14.newObject("PartDesign::Pad", "Pad020")
pad21.Profile = sketch22
pad21.Length = Q("36 in")
body15 = doc.addObject("PartDesign::Body", "Body014")

# Sketch on XY plane
sketch23 = body15.newObject("Sketcher::SketchObject", "Sketch022")
sketch23.AttachmentSupport = (doc.getObject("XY_Plane014"), [""])
sketch23.MapMode = "FlatFace"
add_polygon(sketch23, [(-4089, -2686), (-4089, -1734), (-3429, -1734), (-3429, -2686)])  # lines 0-3
sketch23.addConstraint(Sketcher.Constraint("Vertical", 0))
sketch23.addConstraint(Sketcher.Constraint("Horizontal", 1))
sketch23.addConstraint(Sketcher.Constraint("Vertical", 2))
sketch23.addConstraint(Sketcher.Constraint("Horizontal", 3))
sketch23.addConstraint(Sketcher.Constraint("DistanceX", 1, 1, 1, 2, Q("26 in")))
sketch23.addConstraint(Sketcher.Constraint("DistanceY", 0, 1, 0, 2, Q("37.5 in")))
sketch23.addConstraint(Sketcher.Constraint("DistanceX", 0, 2, -1, 1, Q("161 in")))
sketch23.addConstraint(Sketcher.Constraint("DistanceY", 0, 2, -1, 1, Q("68.25 in")))
pad22 = body15.newObject("PartDesign::Pad", "Pad021")
pad22.Profile = sketch23
pad22.Length = Q("36 in")

# Sketch on XY plane
sketch24 = body15.newObject("Sketcher::SketchObject", "Sketch023")
sketch24.AttachmentSupport = (doc.getObject("XY_Plane014"), [""])
sketch24.MapMode = "FlatFace"
sketch24.AttachmentOffset = App.Placement(App.Vector(0, 0, 36 * 25.4), App.Rotation())
sketch24.addGeometry(Part.Circle(App.Vector(-3480, -2559, 0), App.Vector(0, 0, 1), 19), False)
sketch24.addGeometry(Part.Circle(App.Vector(-3480, -1949, 0), App.Vector(0, 0, 1), 19), False)
sketch24.addGeometry(Part.Circle(App.Vector(-3480, -2153, 0), App.Vector(0, 0, 1), 19), False)
sketch24.addGeometry(Part.Circle(App.Vector(-3480, -2356, 0), App.Vector(0, 0, 1), 19), False)
sketch24.addConstraint(Sketcher.Constraint("Equal", 0, 1))
sketch24.addConstraint(Sketcher.Constraint("Equal", 1, 2))
sketch24.addConstraint(Sketcher.Constraint("Equal", 2, 3))
sketch24.addConstraint(Sketcher.Constraint("Vertical", 0, 3, 1, 3))
sketch24.addConstraint(Sketcher.Constraint("Vertical", 1, 3, 2, 3))
sketch24.addConstraint(Sketcher.Constraint("Vertical", 2, 3, 3, 3))
sketch24.addConstraint(Sketcher.Constraint("Diameter", 0, Q("1.5 in")))
sketch24.addConstraint(Sketcher.Constraint("DistanceX", 0, 3, -1, 1, Q("137 in")))
sketch24.addConstraint(Sketcher.Constraint("DistanceY", 0, 3, 1, 3, Q("24 in")))
sketch24.addConstraint(Sketcher.Constraint("DistanceY", 2, 3, 1, 3, Q("8 in")))
sketch24.addConstraint(Sketcher.Constraint("DistanceY", 3, 3, 2, 3, Q("8 in")))
sketch24.addConstraint(Sketcher.Constraint("DistanceY", 0, 3, -1, 1, Q("100.75 in")))
pad23 = body15.newObject("PartDesign::Pad", "Pad022")
pad23.Profile = sketch24
pad23.Length = Q("0.5 in")
body16 = doc.addObject("PartDesign::Body", "Body015")

# Sketch on XY plane
sketch25 = body16.newObject("Sketcher::SketchObject", "Sketch024")
sketch25.AttachmentSupport = (doc.getObject("XY_Plane015"), [""])
sketch25.MapMode = "FlatFace"
add_polygon(sketch25, [(-4089, 0), (-4089, 457), (-3429, 457), (-3429, 0)])  # lines 0-3
sketch25.addConstraint(Sketcher.Constraint("Vertical", 0))
sketch25.addConstraint(Sketcher.Constraint("Horizontal", 1))
sketch25.addConstraint(Sketcher.Constraint("Vertical", 2))
sketch25.addConstraint(Sketcher.Constraint("Horizontal", 3))
sketch25.addConstraint(Sketcher.Constraint("PointOnObject", 2, 2, -1))
sketch25.addConstraint(Sketcher.Constraint("DistanceX", 1, 1, 1, 2, Q("26 in")))
sketch25.addConstraint(Sketcher.Constraint("DistanceY", 0, 1, 0, 2, Q("18 in")))
sketch25.addConstraint(Sketcher.Constraint("DistanceX", 0, 2, -1, 1, Q("161 in")))
pad24 = body16.newObject("PartDesign::Pad", "Pad023")
pad24.Profile = sketch25
pad24.Length = Q("36 in")
body17 = doc.addObject("PartDesign::Body", "Body016")

# Sketch on XY plane
sketch26 = body17.newObject("Sketcher::SketchObject", "Sketch025")
sketch26.AttachmentSupport = (doc.getObject("XY_Plane016"), [""])
sketch26.MapMode = "FlatFace"
add_polygon(sketch26, [(-4089, -1708), (-4089, -1060), (-3429, -1060), (-3429, -1708)])  # lines 0-3
sketch26.addConstraint(Sketcher.Constraint("Vertical", 0))
sketch26.addConstraint(Sketcher.Constraint("Horizontal", 1))
sketch26.addConstraint(Sketcher.Constraint("Vertical", 2))
sketch26.addConstraint(Sketcher.Constraint("Horizontal", 3))
sketch26.addConstraint(Sketcher.Constraint("DistanceX", 1, 1, 1, 2, Q("26 in")))
sketch26.addConstraint(Sketcher.Constraint("DistanceY", 0, 1, 0, 2, Q("25.5 in")))
sketch26.addConstraint(Sketcher.Constraint("DistanceX", 0, 2, -1, 1, Q("161 in")))
sketch26.addConstraint(Sketcher.Constraint("DistanceY", 0, 2, -1, 1, Q("41.75 in")))
pad25 = body17.newObject("PartDesign::Pad", "Pad024")
pad25.Profile = sketch26
pad25.Length = Q("36 in")

doc.recompute()
